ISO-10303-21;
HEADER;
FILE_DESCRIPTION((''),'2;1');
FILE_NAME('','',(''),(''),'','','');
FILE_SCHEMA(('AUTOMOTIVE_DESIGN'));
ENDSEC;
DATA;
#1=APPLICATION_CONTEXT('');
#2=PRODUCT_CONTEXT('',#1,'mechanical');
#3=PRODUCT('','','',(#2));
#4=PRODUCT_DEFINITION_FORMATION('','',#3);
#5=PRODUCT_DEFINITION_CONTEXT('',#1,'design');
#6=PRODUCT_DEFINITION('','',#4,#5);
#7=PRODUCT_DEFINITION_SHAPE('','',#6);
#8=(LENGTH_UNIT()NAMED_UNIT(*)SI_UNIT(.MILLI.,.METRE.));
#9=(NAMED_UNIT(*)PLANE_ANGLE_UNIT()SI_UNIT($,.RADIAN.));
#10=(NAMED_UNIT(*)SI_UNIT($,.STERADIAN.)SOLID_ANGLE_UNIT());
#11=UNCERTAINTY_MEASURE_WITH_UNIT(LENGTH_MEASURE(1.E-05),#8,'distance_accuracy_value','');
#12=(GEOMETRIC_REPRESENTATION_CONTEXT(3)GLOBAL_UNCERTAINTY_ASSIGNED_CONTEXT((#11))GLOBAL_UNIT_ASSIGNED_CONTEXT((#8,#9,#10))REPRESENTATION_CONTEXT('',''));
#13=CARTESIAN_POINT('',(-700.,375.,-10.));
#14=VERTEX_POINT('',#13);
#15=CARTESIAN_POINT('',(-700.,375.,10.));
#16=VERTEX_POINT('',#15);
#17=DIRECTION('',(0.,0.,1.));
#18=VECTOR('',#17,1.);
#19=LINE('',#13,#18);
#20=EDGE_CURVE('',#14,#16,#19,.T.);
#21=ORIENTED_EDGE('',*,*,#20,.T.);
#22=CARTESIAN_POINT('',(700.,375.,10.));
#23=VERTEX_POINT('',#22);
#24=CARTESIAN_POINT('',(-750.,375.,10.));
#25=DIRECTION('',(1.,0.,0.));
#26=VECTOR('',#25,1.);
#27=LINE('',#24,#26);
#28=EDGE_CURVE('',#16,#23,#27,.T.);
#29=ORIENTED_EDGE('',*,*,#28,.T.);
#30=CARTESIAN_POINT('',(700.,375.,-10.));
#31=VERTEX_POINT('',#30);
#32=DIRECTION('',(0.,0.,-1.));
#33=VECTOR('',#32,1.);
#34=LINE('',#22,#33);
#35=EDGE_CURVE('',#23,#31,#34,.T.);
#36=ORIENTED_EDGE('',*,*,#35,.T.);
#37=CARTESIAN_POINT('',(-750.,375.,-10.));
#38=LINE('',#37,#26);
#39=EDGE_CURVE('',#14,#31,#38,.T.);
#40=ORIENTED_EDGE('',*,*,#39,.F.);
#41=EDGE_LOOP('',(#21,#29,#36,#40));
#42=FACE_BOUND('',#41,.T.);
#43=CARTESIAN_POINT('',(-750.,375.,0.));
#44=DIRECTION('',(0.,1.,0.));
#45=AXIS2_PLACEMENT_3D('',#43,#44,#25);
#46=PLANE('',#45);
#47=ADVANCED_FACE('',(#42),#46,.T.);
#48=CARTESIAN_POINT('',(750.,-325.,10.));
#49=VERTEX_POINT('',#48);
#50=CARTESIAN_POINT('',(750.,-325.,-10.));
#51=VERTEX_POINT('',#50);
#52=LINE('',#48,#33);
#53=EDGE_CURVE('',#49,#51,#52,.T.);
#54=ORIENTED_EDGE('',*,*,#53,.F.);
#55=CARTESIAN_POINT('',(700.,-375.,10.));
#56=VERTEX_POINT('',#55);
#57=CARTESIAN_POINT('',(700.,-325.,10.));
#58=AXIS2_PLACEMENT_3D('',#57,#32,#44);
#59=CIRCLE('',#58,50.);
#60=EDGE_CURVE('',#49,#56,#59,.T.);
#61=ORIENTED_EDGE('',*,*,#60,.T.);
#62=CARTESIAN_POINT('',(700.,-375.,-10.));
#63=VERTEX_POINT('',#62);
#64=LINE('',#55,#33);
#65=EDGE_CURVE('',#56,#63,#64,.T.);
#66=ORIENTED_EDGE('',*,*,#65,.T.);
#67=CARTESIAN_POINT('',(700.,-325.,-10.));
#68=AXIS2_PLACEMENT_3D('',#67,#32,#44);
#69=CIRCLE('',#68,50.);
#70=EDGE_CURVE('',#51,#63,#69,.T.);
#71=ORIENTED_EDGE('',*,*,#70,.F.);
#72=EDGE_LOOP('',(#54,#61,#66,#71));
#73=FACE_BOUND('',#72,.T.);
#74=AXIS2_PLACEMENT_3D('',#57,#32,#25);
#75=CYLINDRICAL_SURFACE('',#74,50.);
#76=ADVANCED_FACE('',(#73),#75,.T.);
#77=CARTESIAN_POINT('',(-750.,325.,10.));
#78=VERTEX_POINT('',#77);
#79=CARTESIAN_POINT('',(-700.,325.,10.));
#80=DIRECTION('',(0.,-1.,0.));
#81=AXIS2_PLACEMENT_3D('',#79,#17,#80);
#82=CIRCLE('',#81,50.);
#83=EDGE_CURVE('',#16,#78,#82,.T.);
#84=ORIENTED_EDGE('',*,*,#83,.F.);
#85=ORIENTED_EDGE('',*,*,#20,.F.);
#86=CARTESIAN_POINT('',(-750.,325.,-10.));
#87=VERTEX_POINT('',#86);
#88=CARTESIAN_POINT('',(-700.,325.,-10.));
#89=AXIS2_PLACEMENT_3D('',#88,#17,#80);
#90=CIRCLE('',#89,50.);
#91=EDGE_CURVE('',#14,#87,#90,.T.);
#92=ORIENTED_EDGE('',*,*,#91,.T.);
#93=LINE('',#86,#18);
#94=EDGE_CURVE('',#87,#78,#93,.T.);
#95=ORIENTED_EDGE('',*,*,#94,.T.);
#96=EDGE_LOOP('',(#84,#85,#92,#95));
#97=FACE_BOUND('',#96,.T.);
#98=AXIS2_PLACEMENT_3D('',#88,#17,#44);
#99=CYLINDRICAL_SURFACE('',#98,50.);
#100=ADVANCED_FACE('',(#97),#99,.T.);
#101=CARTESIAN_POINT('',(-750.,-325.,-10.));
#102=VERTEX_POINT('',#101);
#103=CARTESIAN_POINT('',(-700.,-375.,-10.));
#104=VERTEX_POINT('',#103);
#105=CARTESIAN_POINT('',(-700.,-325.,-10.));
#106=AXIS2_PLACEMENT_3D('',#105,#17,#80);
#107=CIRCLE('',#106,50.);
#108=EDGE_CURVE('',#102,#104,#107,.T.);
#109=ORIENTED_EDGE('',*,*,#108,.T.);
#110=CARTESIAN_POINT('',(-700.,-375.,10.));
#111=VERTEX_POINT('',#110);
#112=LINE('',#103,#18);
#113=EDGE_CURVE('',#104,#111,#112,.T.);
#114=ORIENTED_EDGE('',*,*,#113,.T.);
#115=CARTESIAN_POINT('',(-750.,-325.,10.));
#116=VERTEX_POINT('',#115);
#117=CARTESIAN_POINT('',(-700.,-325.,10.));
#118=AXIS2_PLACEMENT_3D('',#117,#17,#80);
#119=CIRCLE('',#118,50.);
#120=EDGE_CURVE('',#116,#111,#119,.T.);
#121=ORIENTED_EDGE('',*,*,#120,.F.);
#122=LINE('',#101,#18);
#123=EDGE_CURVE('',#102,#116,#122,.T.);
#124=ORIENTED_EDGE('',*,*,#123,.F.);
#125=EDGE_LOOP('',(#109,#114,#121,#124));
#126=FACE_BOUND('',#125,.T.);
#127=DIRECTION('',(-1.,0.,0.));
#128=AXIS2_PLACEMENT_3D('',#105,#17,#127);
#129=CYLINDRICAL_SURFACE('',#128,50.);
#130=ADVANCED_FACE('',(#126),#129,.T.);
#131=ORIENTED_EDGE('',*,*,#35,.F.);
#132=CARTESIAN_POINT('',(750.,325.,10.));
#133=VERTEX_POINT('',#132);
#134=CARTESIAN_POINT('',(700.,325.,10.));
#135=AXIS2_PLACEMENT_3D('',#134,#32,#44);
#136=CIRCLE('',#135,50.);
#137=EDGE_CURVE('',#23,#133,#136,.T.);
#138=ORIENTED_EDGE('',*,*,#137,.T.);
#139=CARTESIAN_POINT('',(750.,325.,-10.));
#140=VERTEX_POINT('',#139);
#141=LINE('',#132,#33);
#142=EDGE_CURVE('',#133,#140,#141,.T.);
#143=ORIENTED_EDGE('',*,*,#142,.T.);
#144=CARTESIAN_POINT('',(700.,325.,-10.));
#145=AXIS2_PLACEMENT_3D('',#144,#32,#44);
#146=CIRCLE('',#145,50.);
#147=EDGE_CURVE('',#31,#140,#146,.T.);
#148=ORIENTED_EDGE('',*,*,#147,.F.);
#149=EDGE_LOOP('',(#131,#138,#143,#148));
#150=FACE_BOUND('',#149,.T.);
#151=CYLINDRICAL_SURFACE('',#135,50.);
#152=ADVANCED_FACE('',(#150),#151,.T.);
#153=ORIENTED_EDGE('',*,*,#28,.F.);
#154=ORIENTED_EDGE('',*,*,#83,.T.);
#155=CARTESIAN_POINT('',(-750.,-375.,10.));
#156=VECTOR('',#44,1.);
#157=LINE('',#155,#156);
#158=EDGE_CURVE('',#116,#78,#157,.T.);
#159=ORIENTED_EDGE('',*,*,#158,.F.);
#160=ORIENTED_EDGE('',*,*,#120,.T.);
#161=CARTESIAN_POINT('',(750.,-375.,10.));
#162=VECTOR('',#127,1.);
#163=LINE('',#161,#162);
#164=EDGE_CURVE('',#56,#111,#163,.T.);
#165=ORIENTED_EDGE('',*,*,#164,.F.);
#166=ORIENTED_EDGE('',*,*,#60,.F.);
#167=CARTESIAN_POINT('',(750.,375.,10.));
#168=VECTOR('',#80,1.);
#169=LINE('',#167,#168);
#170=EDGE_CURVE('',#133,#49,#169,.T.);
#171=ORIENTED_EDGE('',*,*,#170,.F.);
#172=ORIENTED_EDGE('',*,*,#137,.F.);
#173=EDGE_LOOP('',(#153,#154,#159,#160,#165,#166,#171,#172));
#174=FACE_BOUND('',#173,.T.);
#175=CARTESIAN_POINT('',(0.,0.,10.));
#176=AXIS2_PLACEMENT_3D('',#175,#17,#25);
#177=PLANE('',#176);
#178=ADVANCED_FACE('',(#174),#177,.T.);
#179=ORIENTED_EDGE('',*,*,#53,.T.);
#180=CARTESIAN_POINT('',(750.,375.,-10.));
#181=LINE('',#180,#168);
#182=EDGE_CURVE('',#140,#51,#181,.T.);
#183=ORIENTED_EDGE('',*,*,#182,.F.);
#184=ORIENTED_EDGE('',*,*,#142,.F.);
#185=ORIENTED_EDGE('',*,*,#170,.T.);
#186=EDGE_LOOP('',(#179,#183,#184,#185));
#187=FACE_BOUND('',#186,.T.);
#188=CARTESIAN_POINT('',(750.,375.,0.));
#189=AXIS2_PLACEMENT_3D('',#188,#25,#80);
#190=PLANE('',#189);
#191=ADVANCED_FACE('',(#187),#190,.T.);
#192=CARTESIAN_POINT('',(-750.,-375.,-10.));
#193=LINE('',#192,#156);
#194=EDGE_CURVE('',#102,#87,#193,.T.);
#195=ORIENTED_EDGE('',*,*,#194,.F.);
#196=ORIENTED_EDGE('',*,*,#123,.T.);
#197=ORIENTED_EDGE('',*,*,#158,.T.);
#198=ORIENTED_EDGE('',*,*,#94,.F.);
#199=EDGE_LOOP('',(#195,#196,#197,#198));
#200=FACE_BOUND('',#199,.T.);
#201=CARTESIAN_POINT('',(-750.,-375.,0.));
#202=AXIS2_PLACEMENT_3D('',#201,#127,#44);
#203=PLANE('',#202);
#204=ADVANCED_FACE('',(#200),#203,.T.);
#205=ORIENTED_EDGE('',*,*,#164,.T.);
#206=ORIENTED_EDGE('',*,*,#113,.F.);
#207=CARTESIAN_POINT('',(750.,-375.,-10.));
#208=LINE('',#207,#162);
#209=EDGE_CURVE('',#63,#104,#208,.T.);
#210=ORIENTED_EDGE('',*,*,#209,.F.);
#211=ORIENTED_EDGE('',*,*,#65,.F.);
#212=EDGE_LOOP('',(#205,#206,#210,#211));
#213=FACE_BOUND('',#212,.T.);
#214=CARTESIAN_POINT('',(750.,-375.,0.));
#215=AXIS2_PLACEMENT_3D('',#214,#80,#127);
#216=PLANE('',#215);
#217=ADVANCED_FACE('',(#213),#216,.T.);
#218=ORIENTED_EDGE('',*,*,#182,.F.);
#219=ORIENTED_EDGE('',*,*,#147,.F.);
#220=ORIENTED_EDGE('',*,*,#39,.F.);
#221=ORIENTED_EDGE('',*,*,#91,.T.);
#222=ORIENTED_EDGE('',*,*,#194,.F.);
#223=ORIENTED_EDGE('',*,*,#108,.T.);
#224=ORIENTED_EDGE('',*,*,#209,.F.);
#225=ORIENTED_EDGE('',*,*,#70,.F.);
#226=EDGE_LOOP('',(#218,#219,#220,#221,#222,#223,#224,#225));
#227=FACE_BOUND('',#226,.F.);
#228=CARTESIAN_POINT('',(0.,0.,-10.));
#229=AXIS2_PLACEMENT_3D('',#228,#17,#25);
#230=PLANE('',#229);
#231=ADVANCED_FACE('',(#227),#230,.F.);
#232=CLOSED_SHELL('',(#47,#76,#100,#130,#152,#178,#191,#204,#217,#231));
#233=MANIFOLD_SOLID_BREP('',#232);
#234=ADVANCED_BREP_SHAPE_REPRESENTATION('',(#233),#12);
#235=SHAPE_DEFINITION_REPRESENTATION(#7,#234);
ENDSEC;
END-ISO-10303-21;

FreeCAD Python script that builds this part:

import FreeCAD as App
import Part
import Sketcher


def edges_at(feature, points):
    """Names of the edges that pass closest to the given points."""
    edges = feature.Shape.Edges
    near = lambda p: min(range(len(edges)), key=lambda i: edges[i].distToShape(Part.Vertex(*p))[0])
    return sorted({f"Edge{near(p) + 1}" for p in points})

doc = App.newDocument("Part")
body = doc.addObject("PartDesign::Body", "Body")

# Sketch on XY plane
sketch1 = body.newObject("Sketcher::SketchObject", "Sketch")
sketch1.AttachmentSupport = (doc.getObject("XY_Plane"), [""])
sketch1.MapMode = "FlatFace"
sketch1.addGeometry([
    Part.LineSegment(App.Vector(750, 375, 0), App.Vector(-750, 375, 0)),
    Part.LineSegment(App.Vector(-750, 375, 0), App.Vector(-750, -375, 0)),
    Part.LineSegment(App.Vector(-750, -375, 0), App.Vector(750, -375, 0)),
    Part.LineSegment(App.Vector(750, -375, 0), App.Vector(750, 375, 0)),
], False)
sketch1.addConstraint([
    Sketcher.Constraint("Coincident", 0, 2, 1, 1),
    Sketcher.Constraint("Coincident", 1, 2, 2, 1),
    Sketcher.Constraint("Coincident", 2, 2, 3, 1),
    Sketcher.Constraint("Coincident", 3, 2, 0, 1),
    Sketcher.Constraint("Horizontal", 0),
    Sketcher.Constraint("Vertical", 1),
    Sketcher.Constraint("Horizontal", 2),
    Sketcher.Constraint("Vertical", 3),
    Sketcher.Constraint("Symmetric", 0, 2, 2, 2, -1, 1),
    Sketcher.Constraint("DistanceX", 0, 2, 0, 1, 1500.0),
    Sketcher.Constraint("DistanceY", 1, 2, 1, 1, 750.0),
])
pad1 = body.newObject("PartDesign::Pad", "Pad")
pad1.Profile = sketch1
pad1.Length = 20
pad1.Midplane = True
doc.recompute()

fillet = body.newObject("PartDesign::Fillet", "Fillet")
fillet.Base = (pad1, edges_at(pad1, [
    (-750, 375, 0),
    (750, 375, 0),
    (750, -375, 0),
    (-750, -375, 0),
]))
fillet.Radius = 50

doc.recompute()
